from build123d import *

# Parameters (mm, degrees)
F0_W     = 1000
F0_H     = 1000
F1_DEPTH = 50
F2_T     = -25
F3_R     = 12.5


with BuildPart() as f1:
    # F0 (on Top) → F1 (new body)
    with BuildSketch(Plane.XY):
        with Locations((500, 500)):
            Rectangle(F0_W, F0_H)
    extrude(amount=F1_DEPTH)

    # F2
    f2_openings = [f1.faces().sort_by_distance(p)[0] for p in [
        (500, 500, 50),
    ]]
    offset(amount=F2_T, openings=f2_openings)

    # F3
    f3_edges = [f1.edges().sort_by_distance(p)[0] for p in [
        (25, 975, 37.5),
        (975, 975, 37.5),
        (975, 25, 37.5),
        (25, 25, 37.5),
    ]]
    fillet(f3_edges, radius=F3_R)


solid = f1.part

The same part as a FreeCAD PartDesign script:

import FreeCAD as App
import Part
import Sketcher
Q = App.Units.Quantity


def edges_at(feature, points):
    """Names of the edges that pass closest to the given points."""
    edges = feature.Shape.Edges
    near = lambda p: min(range(len(edges)), key=lambda i: edges[i].distToShape(Part.Vertex(*p))[0])
    return sorted({f"Edge{near(p) + 1}" for p in points})


def faces_at(feature, points):
    """Names of the faces that lie closest to the given points."""
    faces = feature.Shape.Faces
    near = lambda p: min(range(len(faces)), key=lambda i: faces[i].distToShape(Part.Vertex(*p))[0])
    return sorted({f"Face{near(p) + 1}" for p in points})


def add_polygon(sketch, points):
    """Adds a closed chain of lines whose ends are joined by coincident constraints."""
    first, n = sketch.GeometryCount, len(points)
    for a, b in zip(points, points[1:] + points[:1]):
        sketch.addGeometry(Part.LineSegment(App.Vector(*a, 0), App.Vector(*b, 0)), False)
    for i in range(n):
        sketch.addConstraint(Sketcher.Constraint("Coincident", first + i, 2, first + (i + 1) % n, 1))

doc = App.newDocument("Part")
body = doc.addObject("PartDesign::Body", "Body")

# Sketch on XY plane
sketch1 = doc.addObject("Sketcher::SketchObject", "Sketch")
body.addObject(sketch1)
sketch1.AttachmentSupport = (doc.XY_Plane, [""])
sketch1.MapMode = "FlatFace"
add_polygon(sketch1, [(0, 1000), (0, 0), (1000, 0), (1000, 1000)])  # lines 0-3
sketch1.addConstraint(Sketcher.Constraint("Vertical", 0))
sketch1.addConstraint(Sketcher.Constraint("Horizontal", 1))
sketch1.addConstraint(Sketcher.Constraint("Vertical", 2))
sketch1.addConstraint(Sketcher.Constraint("Horizontal", 3))
sketch1.addConstraint(Sketcher.Constraint("Coincident", 0, 2, -1, 1))
sketch1.addConstraint(Sketcher.Constraint("Equal", 3, 0))
sketch1.addConstraint(Sketcher.Constraint("DistanceX", 1, 1, 1, 2, Q("1000 mm")))
pad1 = doc.addObject("PartDesign::Pad", "Pad")
body.addObject(pad1)
pad1.Profile = sketch1
pad1.Length = 50
doc.recompute()

thickness = doc.addObject("PartDesign::Thickness", "Thickness")
body.addObject(thickness)
thickness.Base = (pad1, faces_at(pad1, [(500, 500, 50)]))
thickness.Value = 25
thickness.Reversed = True
thickness.Join = "Arc"
doc.recompute()

fillet = doc.addObject("PartDesign::Fillet", "Fillet")
body.addObject(fillet)
fillet.Base = (thickness, edges_at(thickness, [
    (25, 975, 37.5),
    (975, 975, 37.5),
    (975, 25, 37.5),
    (25, 25, 37.5),
]))
fillet.Radius = 12.5

doc.recompute()
